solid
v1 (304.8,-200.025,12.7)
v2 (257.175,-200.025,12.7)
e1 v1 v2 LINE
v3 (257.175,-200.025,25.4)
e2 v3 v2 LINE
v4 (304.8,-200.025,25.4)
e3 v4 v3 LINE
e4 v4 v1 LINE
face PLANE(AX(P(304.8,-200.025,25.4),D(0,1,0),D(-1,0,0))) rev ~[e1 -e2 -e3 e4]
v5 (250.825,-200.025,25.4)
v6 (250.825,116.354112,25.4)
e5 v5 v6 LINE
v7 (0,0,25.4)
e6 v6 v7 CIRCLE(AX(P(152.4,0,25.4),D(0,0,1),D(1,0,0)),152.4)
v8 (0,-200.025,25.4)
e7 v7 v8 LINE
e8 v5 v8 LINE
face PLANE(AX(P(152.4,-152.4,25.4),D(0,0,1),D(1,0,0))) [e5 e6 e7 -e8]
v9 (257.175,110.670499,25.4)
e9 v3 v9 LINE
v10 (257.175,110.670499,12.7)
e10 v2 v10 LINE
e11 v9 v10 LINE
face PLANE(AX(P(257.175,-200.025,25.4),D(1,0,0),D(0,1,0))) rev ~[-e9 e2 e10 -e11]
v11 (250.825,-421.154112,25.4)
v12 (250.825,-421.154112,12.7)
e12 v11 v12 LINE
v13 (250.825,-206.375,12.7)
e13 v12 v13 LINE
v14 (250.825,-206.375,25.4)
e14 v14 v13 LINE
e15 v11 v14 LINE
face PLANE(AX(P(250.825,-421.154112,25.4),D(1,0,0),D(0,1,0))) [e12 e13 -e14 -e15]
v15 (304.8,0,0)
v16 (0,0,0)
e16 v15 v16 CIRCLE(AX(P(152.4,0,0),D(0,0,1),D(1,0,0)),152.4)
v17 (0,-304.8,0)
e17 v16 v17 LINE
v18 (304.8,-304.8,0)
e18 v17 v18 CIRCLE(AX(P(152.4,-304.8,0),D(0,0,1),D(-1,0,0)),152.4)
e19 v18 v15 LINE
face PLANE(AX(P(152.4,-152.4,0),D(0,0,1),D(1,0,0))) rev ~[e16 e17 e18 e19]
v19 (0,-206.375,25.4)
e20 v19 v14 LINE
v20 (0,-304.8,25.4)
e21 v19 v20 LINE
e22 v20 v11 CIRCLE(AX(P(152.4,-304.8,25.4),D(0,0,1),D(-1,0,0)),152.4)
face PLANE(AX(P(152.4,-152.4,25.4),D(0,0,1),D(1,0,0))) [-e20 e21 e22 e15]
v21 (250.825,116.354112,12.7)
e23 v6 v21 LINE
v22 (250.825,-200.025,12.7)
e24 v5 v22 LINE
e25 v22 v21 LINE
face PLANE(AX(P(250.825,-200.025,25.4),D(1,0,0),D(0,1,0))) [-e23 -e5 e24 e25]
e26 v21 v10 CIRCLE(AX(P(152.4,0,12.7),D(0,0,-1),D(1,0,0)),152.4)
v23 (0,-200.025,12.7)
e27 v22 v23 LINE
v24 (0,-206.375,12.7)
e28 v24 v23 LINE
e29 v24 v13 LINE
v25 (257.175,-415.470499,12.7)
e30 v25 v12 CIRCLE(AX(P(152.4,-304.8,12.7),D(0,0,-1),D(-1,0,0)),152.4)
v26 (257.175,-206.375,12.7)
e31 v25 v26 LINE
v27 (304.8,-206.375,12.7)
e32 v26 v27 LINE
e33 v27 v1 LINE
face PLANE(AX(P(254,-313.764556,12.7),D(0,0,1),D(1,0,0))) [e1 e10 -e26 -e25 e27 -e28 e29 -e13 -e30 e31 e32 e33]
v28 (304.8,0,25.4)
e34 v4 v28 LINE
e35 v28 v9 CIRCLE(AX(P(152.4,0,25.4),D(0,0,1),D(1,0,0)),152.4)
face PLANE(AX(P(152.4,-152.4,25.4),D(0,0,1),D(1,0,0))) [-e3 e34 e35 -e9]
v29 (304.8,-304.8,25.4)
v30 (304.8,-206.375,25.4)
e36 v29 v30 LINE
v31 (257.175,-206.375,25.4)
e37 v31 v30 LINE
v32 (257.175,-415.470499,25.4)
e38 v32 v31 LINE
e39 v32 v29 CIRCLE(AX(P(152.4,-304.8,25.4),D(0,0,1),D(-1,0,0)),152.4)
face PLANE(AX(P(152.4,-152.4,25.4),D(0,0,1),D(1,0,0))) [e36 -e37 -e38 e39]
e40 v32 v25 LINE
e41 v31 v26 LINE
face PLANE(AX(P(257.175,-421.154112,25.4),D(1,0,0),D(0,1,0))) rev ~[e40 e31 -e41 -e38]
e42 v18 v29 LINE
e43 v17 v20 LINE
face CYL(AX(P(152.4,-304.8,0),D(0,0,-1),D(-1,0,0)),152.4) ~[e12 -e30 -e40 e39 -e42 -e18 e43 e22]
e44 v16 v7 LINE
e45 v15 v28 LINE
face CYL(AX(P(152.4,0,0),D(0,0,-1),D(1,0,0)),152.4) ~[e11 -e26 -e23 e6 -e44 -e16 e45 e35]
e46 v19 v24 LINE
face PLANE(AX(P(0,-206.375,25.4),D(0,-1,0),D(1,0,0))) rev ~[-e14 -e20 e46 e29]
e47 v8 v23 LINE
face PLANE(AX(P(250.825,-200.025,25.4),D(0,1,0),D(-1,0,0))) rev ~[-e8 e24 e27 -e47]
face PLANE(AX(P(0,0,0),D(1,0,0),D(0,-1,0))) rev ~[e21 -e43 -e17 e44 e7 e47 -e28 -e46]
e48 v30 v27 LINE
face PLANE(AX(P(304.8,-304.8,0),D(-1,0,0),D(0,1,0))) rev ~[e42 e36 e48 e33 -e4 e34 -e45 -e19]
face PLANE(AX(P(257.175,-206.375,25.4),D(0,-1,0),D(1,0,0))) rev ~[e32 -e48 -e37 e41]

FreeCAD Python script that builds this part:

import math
import FreeCAD as App
import Part
import Sketcher
Q = App.Units.Quantity


def add_polygon(sketch, points):
    """Adds a closed chain of lines whose ends are joined by coincident constraints."""
    first, n = sketch.GeometryCount, len(points)
    for a, b in zip(points, points[1:] + points[:1]):
        sketch.addGeometry(Part.LineSegment(App.Vector(*a, 0), App.Vector(*b, 0)), False)
    for i in range(n):
        sketch.addConstraint(Sketcher.Constraint("Coincident", first + i, 2, first + (i + 1) % n, 1))

doc = App.newDocument("Part")
params = doc.addObject("Spreadsheet::Sheet", "Params")
for row, (alias, value) in enumerate([
    ("sketch1_radius", "6 in"),
    ("sketch1_height", "12 in"),
    ("pad1_length", "1 in"),
    ("sketch2_width", "0.25 in"),
    ("sketch2_width2", "1.875 in"),
    ("pocket1_length", "0.5 in"),
], start=1):
    params.set(f"A{row}", alias)
    params.set(f"B{row}", "=" + value)
    params.setAlias(f"B{row}", alias)

body = doc.addObject("PartDesign::Body", "Body")

# Sketch on XY plane
sketch1 = body.newObject("Sketcher::SketchObject", "Sketch")
sketch1.AttachmentSupport = (doc.getObject("XY_Plane"), [""])
sketch1.MapMode = "FlatFace"
sketch1.addGeometry([
    Part.ArcOfCircle(Part.Circle(App.Vector(152, 0, 0), App.Vector(0, 0, 1), 152), math.radians(0), math.radians(180)),
    Part.LineSegment(App.Vector(0, 0, 0), App.Vector(0, -305, 0)),
    Part.ArcOfCircle(Part.Circle(App.Vector(152, -305, 0), App.Vector(0, 0, 1), 152), math.radians(180), math.radians(360)),
    Part.LineSegment(App.Vector(305, -305, 0), App.Vector(305, 0, 0)),
], False)
sketch1.addConstraint([
    Sketcher.Constraint("Tangent", 0, 2, 1, 1),
    Sketcher.Constraint("Tangent", 1, 2, 2, 1),
    Sketcher.Constraint("Tangent", 2, 2, 3, 1),
    Sketcher.Constraint("Tangent", 3, 2, 0, 1),
    Sketcher.Constraint("Vertical", 1),
    Sketcher.Constraint("Vertical", 3),
    Sketcher.Constraint("Coincident", 0, 2, -1, 1),
    Sketcher.Constraint("Radius", 0, Q("6 in")),
    Sketcher.Constraint("DistanceY", 1, 2, 1, 1, Q("12 in")),
])
sketch1.setExpression("Constraints[7]", "Params.sketch1_radius")
sketch1.setExpression("Constraints[8]", "Params.sketch1_height")
pad1 = body.newObject("PartDesign::Pad", "Pad")
pad1.Profile = sketch1
pad1.setExpression("Length", "Params.pad1_length")

# Sketch on XY plane
sketch2 = body.newObject("Sketcher::SketchObject", "Sketch001")
sketch2.AttachmentSupport = (doc.getObject("XY_Plane"), [""])
sketch2.MapMode = "FlatFace"
sketch2.AttachmentOffset = App.Placement(App.Vector(0, 0, 1 * 25.4), App.Rotation())
add_polygon(sketch2, [(251, -206), (251, -421), (257, -421), (257, -206), (305, -206), (305, -200), (257, -200), (257, 116), (251, 116), (251, -200), (0, -200), (0, -206)])  # lines 0-11
sketch2.addConstraint([
    Sketcher.Constraint("Vertical", 0),
    Sketcher.Constraint("Horizontal", 1),
    Sketcher.Constraint("Vertical", 2),
    Sketcher.Constraint("Horizontal", 3),
    Sketcher.Constraint("Vertical", 4),
    Sketcher.Constraint("Horizontal", 5),
    Sketcher.Constraint("Vertical", 6),
    Sketcher.Constraint("Horizontal", 7),
    Sketcher.Constraint("Vertical", 8),
    Sketcher.Constraint("Horizontal", 9),
    Sketcher.Constraint("Vertical", 10),
    Sketcher.Constraint("Horizontal", 11),
    Sketcher.Constraint("PointOnObject", 9, 2, -2),
    Sketcher.Constraint("Horizontal", 5, 2, 8, 2),
    Sketcher.Constraint("Horizontal", 3, 2, 10, 2),
    Sketcher.Constraint("Vertical", 2, 2, 5, 2),
    Sketcher.Constraint("Vertical", 0, 2, 7, 2),
    Sketcher.Constraint("Equal", 7, 4),
    Sketcher.Constraint("DistanceX", -1, 1, 3, 2, Q("12 in")),
    Sketcher.Constraint("DistanceX", 1, 1, 1, 2, Q("0.25 in")),
    Sketcher.Constraint("DistanceX", 3, 1, 3, 2, Q("1.875 in")),
    Sketcher.Constraint("DistanceY", 2, 2, -1, 1, Q("8.125 in")),
    Sketcher.Constraint("DistanceY", 0, 2, 0, 1, Q("214.779112 mm")),
    Sketcher.Constraint("DistanceY", 6, 1, 6, 2, Q("316.379112 mm")),
])
sketch2.setExpression("Constraints[31]", "Params.sketch2_width")
sketch2.setExpression("Constraints[32]", "Params.sketch2_width2")
pocket1 = body.newObject("PartDesign::Pocket", "Pocket")
pocket1.Profile = sketch2
pocket1.setExpression("Length", "Params.pocket1_length")

doc.recompute()
